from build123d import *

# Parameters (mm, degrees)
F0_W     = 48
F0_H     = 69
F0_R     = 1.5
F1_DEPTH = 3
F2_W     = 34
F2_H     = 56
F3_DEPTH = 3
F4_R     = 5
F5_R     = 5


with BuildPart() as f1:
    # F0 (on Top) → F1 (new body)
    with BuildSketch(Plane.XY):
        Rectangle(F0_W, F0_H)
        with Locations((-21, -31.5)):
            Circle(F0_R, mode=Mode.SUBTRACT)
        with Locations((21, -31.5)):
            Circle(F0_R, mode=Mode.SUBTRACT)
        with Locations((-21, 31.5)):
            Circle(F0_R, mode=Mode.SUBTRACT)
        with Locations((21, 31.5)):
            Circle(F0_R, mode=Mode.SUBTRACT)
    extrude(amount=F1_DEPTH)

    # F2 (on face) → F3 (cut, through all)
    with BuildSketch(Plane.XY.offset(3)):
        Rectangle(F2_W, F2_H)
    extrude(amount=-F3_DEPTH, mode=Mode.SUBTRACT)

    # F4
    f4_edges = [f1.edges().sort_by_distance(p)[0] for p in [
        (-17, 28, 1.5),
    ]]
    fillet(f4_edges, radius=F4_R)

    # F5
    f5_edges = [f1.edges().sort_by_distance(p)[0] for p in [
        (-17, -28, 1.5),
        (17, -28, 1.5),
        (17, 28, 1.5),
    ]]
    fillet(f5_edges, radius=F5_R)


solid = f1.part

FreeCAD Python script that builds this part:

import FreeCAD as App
import Part
import Sketcher
from FreeCAD import Vector


def edges_at(feature, points):
    """Names of the edges that pass closest to the given points."""
    edges = feature.Shape.Edges
    near = lambda p: min(range(len(edges)), key=lambda i: edges[i].distToShape(Part.Vertex(*p))[0])
    return sorted({f"Edge{near(p) + 1}" for p in points})

doc = App.newDocument("Part")
body = doc.addObject("PartDesign::Body", "Body")

sketch1 = body.newObject("Sketcher::SketchObject", "Sketch")
sketch1.AttachmentSupport = (doc.getObject("XY_Plane"), [""])
sketch1.MapMode = "FlatFace"
sketch1.addGeometry([
    Part.LineSegment(Vector(-24, 34.5, 0), Vector(-24, -34.5, 0)),
    Part.LineSegment(Vector(-24, -34.5, 0), Vector(24, -34.5, 0)),
    Part.LineSegment(Vector(24, -34.5, 0), Vector(24, 34.5, 0)),
    Part.LineSegment(Vector(24, 34.5, 0), Vector(-24, 34.5, 0)),
    Part.Circle(Vector(-21, -31.5, 0), Vector(0, 0, 1), 1.5),
    Part.Circle(Vector(21, -31.5, 0), Vector(0, 0, 1), 1.5),
    Part.Circle(Vector(-21, 31.5, 0), Vector(0, 0, 1), 1.5),
    Part.Circle(Vector(21, 31.5, 0), Vector(0, 0, 1), 1.5),
], False)
sketch1.addConstraint([
    Sketcher.Constraint("Coincident", 0, 2, 1, 1),
    Sketcher.Constraint("Coincident", 1, 2, 2, 1),
    Sketcher.Constraint("Coincident", 2, 2, 3, 1),
    Sketcher.Constraint("Coincident", 3, 2, 0, 1),
    Sketcher.Constraint("Vertical", 0),
    Sketcher.Constraint("Horizontal", 1),
    Sketcher.Constraint("Vertical", 2),
    Sketcher.Constraint("Horizontal", 3),
    Sketcher.Constraint("Equal", 4, 5),
    Sketcher.Constraint("Equal", 5, 6),
    Sketcher.Constraint("Equal", 6, 7),
    Sketcher.Constraint("Symmetric", 5, 3, 6, 3, -1, 1),
    Sketcher.Constraint("Symmetric", 4, 3, 7, 3, -1, 1),
    Sketcher.Constraint("Symmetric", 0, 2, 2, 2, -1, 1),
    Sketcher.Constraint("Symmetric", 4, 3, 5, 3, -2),
    Sketcher.Constraint("Diameter", 4, 3.0),
    Sketcher.Constraint("DistanceX", 1, 1, 1, 2, 48.0),
    Sketcher.Constraint("DistanceY", 0, 2, 0, 1, 69.0),
    Sketcher.Constraint("DistanceX", 4, 3, -1, 1, 21.0),
    Sketcher.Constraint("DistanceY", 4, 3, 6, 3, 63.0),
])
pad1 = body.newObject("PartDesign::Pad", "Pad")
pad1.Profile = sketch1
pad1.Length = 3

sketch2 = body.newObject("Sketcher::SketchObject", "Sketch001")
sketch2.AttachmentSupport = (doc.getObject("XY_Plane"), [""])
sketch2.MapMode = "FlatFace"
sketch2.AttachmentOffset = App.Placement(Vector(0, 0, 3), App.Rotation())
sketch2.addGeometry([
    Part.LineSegment(Vector(-17, 28, 0), Vector(-17, -28, 0)),
    Part.LineSegment(Vector(-17, -28, 0), Vector(17, -28, 0)),
    Part.LineSegment(Vector(17, -28, 0), Vector(17, 28, 0)),
    Part.LineSegment(Vector(17, 28, 0), Vector(-17, 28, 0)),
], False)
sketch2.addConstraint([
    Sketcher.Constraint("Coincident", 0, 2, 1, 1),
    Sketcher.Constraint("Coincident", 1, 2, 2, 1),
    Sketcher.Constraint("Coincident", 2, 2, 3, 1),
    Sketcher.Constraint("Coincident", 3, 2, 0, 1),
    Sketcher.Constraint("Vertical", 0),
    Sketcher.Constraint("Horizontal", 1),
    Sketcher.Constraint("Vertical", 2),
    Sketcher.Constraint("Horizontal", 3),
    Sketcher.Constraint("Symmetric", 0, 2, 2, 2, -1, 1),
    Sketcher.Constraint("DistanceX", 1, 1, 1, 2, 34.0),
    Sketcher.Constraint("DistanceY", 0, 2, 0, 1, 56.0),
])
pocket1 = body.newObject("PartDesign::Pocket", "Pocket")
pocket1.Profile = sketch2
pocket1.Type = "ThroughAll"
doc.recompute()

fillet = body.newObject("PartDesign::Fillet", "Fillet")
fillet.Base = (pocket1, edges_at(pocket1, [(-17, 28, 1.5)]))
fillet.Radius = 5
doc.recompute()

fillet2 = body.newObject("PartDesign::Fillet", "Fillet001")
fillet2.Base = (fillet, edges_at(fillet, [(-17, -28, 1.5), (17, -28, 1.5), (17, 28, 1.5)]))
fillet2.Radius = 5

doc.recompute()
